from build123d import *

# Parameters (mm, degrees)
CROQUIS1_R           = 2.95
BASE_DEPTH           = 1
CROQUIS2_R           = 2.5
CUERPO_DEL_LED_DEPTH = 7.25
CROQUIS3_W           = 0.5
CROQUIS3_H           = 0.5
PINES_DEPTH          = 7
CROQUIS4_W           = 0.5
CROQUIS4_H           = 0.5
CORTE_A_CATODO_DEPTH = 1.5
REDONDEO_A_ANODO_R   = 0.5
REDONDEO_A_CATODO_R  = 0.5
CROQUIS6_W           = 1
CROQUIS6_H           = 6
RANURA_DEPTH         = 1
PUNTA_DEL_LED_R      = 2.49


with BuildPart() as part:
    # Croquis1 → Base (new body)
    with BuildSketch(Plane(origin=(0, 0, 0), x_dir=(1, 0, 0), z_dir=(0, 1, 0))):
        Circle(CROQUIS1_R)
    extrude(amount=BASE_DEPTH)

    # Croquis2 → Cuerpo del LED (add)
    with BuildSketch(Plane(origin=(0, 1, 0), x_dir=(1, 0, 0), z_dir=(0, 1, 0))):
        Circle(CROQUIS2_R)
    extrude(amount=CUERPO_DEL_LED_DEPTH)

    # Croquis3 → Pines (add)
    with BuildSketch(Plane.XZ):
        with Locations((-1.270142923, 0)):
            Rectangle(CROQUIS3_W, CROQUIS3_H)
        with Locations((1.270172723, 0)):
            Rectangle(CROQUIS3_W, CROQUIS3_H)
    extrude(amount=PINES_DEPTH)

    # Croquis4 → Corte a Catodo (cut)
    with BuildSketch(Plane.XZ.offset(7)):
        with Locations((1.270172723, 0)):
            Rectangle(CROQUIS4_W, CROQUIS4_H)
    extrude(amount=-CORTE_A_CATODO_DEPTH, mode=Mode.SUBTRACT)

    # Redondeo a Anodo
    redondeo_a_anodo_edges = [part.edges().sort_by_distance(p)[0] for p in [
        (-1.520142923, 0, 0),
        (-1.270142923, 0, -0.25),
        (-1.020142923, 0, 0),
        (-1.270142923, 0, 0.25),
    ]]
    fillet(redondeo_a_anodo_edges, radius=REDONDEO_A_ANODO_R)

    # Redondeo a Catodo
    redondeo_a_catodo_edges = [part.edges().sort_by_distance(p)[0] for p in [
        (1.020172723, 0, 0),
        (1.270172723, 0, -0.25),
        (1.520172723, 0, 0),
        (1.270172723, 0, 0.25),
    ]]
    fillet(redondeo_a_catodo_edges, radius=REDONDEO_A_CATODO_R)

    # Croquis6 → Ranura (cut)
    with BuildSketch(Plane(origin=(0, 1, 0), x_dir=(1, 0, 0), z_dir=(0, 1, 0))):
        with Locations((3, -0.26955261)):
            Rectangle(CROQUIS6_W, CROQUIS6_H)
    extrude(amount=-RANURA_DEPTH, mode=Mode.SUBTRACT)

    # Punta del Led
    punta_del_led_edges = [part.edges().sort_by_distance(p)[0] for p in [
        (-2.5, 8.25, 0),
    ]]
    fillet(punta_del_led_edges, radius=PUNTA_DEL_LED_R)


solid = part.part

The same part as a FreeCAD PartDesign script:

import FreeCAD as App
import Part
import Sketcher

V = App.Vector
Q = App.Units.Quantity


def edges_at(feature, points):
    """Names of the edges that pass closest to the given points."""
    edges = feature.Shape.Edges
    near = lambda p: min(range(len(edges)), key=lambda i: edges[i].distToShape(Part.Vertex(*p))[0])
    return sorted({f"Edge{near(p) + 1}" for p in points})


def add_polygon(sketch, points):
    """Adds a closed chain of lines whose ends are joined by coincident constraints."""
    first, n = sketch.GeometryCount, len(points)
    for a, b in zip(points, points[1:] + points[:1]):
        sketch.addGeometry(Part.LineSegment(App.Vector(*a, 0), App.Vector(*b, 0)), False)
    for i in range(n):
        sketch.addConstraint(Sketcher.Constraint("Coincident", first + i, 2, first + (i + 1) % n, 1))

doc = App.newDocument("Part")
body = doc.addObject("PartDesign::Body", "Body")

# Sketch on XZ plane
sketch1 = body.newObject("Sketcher::SketchObject", "Sketch")
sketch1.AttachmentSupport = (doc.getObject("XZ_Plane"), [""])
sketch1.MapMode = "FlatFace"
sketch1.addGeometry(Part.Circle(V(0, 0, 0), V(0, 0, 1), 3), False)
sketch1.addConstraint([
    Sketcher.Constraint("Coincident", 0, 3, -1, 1),
    Sketcher.Constraint("Diameter", 0, Q("5.9 mm")),
])
pad1 = body.newObject("PartDesign::Pad", "Pad")
pad1.Profile = sketch1
pad1.Length = 1
pad1.Reversed = True

# Sketch on XZ plane
sketch2 = body.newObject("Sketcher::SketchObject", "Sketch001")
sketch2.AttachmentSupport = (doc.getObject("XZ_Plane"), [""])
sketch2.MapMode = "FlatFace"
sketch2.AttachmentOffset = App.Placement(V(0, 0, -1), App.Rotation())
sketch2.addGeometry(Part.Circle(V(0, 0, 0), V(0, 0, 1), 2.5), False)
sketch2.addConstraint([
    Sketcher.Constraint("Coincident", 0, 3, -1, 1),
    Sketcher.Constraint("Diameter", 0, Q("5 mm")),
])
pad2 = body.newObject("PartDesign::Pad", "Pad001")
pad2.Profile = sketch2
pad2.Length = 7.25
pad2.Reversed = True

# Sketch on XZ plane
sketch3 = body.newObject("Sketcher::SketchObject", "Sketch002")
sketch3.AttachmentSupport = (doc.getObject("XZ_Plane"), [""])
sketch3.MapMode = "FlatFace"
add_polygon(sketch3, [(-1.5, 0.2), (-1.5, -0.2), (-1, -0.2), (-1, 0.2)])  # lines 0-3
add_polygon(sketch3, [(1, 0.2), (1, -0.2), (1.5, -0.2), (1.5, 0.2)])  # lines 4-7
sketch3.addConstraint([
    Sketcher.Constraint("Vertical", 0),
    Sketcher.Constraint("Horizontal", 1),
    Sketcher.Constraint("Vertical", 2),
    Sketcher.Constraint("Horizontal", 3),
    Sketcher.Constraint("Vertical", 4),
    Sketcher.Constraint("Horizontal", 5),
    Sketcher.Constraint("Vertical", 6),
    Sketcher.Constraint("Horizontal", 7),
    Sketcher.Constraint("Horizontal", 1, 2, 4, 2),
    Sketcher.Constraint("Horizontal", 3, 2, 6, 2),
    Sketcher.Constraint("Equal", 3, 5),
    Sketcher.Constraint("Equal", 7, 0),
    Sketcher.Constraint("DistanceX", 1, 1, 1, 2, Q("0.5 mm")),
    Sketcher.Constraint("DistanceY", 0, 2, -1, 1, Q("0.25 mm")),
    Sketcher.Constraint("DistanceX", 0, 2, -1, 1, Q("1.520143 mm")),
    Sketcher.Constraint("DistanceX", -1, 1, 4, 2, Q("1.020173 mm")),
])
pad3 = body.newObject("PartDesign::Pad", "Pad002")
pad3.Profile = sketch3
pad3.Length = 7

# Sketch on XZ plane
sketch4 = body.newObject("Sketcher::SketchObject", "Sketch003")
sketch4.AttachmentSupport = (doc.getObject("XZ_Plane"), [""])
sketch4.MapMode = "FlatFace"
sketch4.AttachmentOffset = App.Placement(V(0, 0, 7), App.Rotation())
add_polygon(sketch4, [(1, 0.2), (1, -0.2), (1.5, -0.2), (1.5, 0.2)])  # lines 0-3
sketch4.addConstraint([
    Sketcher.Constraint("Vertical", 0),
    Sketcher.Constraint("Horizontal", 1),
    Sketcher.Constraint("Vertical", 2),
    Sketcher.Constraint("Horizontal", 3),
    Sketcher.Constraint("Equal", 3, 0),
    Sketcher.Constraint("DistanceX", 1, 1, 1, 2, Q("0.5 mm")),
    Sketcher.Constraint("DistanceY", 0, 2, -1, 1, Q("0.25 mm")),
    Sketcher.Constraint("DistanceX", -1, 1, 0, 2, Q("1.020173 mm")),
])
pocket1 = body.newObject("PartDesign::Pocket", "Pocket")
pocket1.Profile = sketch4
pocket1.Length = 1.5
doc.recompute()

fillet = body.newObject("PartDesign::Fillet", "Fillet")
fillet.Base = (pocket1, edges_at(pocket1, [
    (-1.52, 0, 0),
    (-1.27, 0, -0.25),
    (-1.02, 0, 0),
    (-1.27, 0, 0.25),
]))
fillet.Radius = 0.5
doc.recompute()

fillet2 = body.newObject("PartDesign::Fillet", "Fillet001")
fillet2.Base = (fillet, edges_at(fillet, [
    (1.02, 0, 0),
    (1.27, 0, -0.25),
    (1.52, 0, 0),
    (1.27, 0, 0.25),
]))
fillet2.Radius = 0.5

# Sketch on XZ plane
sketch5 = body.newObject("Sketcher::SketchObject", "Sketch004")
sketch5.AttachmentSupport = (doc.getObject("XZ_Plane"), [""])
sketch5.MapMode = "FlatFace"
sketch5.AttachmentOffset = App.Placement(V(0, 0, -1), App.Rotation())
add_polygon(sketch5, [(2.5, -2.7), (2.5, 3.3), (3.5, 3.3), (3.5, -2.7)])  # lines 0-3
sketch5.addConstraint([
    Sketcher.Constraint("Vertical", 0),
    Sketcher.Constraint("Horizontal", 1),
    Sketcher.Constraint("Vertical", 2),
    Sketcher.Constraint("Horizontal", 3),
    Sketcher.Constraint("DistanceX", 1, 1, 1, 2, Q("1 mm")),
    Sketcher.Constraint("DistanceY", 0, 1, 0, 2, Q("6 mm")),
    Sketcher.Constraint("DistanceX", -1, 1, 0, 2, Q("2.5 mm")),
    Sketcher.Constraint("DistanceY", -1, 1, 0, 2, Q("3.269553 mm")),
])
pocket2 = body.newObject("PartDesign::Pocket", "Pocket001")
pocket2.Profile = sketch5
pocket2.Length = 1
pocket2.Reversed = True
doc.recompute()

fillet3 = body.newObject("PartDesign::Fillet", "Fillet002")
fillet3.Base = (pocket2, edges_at(pocket2, [(-2.5, 8.25, 0)]))
fillet3.Radius = 2.49

doc.recompute()
